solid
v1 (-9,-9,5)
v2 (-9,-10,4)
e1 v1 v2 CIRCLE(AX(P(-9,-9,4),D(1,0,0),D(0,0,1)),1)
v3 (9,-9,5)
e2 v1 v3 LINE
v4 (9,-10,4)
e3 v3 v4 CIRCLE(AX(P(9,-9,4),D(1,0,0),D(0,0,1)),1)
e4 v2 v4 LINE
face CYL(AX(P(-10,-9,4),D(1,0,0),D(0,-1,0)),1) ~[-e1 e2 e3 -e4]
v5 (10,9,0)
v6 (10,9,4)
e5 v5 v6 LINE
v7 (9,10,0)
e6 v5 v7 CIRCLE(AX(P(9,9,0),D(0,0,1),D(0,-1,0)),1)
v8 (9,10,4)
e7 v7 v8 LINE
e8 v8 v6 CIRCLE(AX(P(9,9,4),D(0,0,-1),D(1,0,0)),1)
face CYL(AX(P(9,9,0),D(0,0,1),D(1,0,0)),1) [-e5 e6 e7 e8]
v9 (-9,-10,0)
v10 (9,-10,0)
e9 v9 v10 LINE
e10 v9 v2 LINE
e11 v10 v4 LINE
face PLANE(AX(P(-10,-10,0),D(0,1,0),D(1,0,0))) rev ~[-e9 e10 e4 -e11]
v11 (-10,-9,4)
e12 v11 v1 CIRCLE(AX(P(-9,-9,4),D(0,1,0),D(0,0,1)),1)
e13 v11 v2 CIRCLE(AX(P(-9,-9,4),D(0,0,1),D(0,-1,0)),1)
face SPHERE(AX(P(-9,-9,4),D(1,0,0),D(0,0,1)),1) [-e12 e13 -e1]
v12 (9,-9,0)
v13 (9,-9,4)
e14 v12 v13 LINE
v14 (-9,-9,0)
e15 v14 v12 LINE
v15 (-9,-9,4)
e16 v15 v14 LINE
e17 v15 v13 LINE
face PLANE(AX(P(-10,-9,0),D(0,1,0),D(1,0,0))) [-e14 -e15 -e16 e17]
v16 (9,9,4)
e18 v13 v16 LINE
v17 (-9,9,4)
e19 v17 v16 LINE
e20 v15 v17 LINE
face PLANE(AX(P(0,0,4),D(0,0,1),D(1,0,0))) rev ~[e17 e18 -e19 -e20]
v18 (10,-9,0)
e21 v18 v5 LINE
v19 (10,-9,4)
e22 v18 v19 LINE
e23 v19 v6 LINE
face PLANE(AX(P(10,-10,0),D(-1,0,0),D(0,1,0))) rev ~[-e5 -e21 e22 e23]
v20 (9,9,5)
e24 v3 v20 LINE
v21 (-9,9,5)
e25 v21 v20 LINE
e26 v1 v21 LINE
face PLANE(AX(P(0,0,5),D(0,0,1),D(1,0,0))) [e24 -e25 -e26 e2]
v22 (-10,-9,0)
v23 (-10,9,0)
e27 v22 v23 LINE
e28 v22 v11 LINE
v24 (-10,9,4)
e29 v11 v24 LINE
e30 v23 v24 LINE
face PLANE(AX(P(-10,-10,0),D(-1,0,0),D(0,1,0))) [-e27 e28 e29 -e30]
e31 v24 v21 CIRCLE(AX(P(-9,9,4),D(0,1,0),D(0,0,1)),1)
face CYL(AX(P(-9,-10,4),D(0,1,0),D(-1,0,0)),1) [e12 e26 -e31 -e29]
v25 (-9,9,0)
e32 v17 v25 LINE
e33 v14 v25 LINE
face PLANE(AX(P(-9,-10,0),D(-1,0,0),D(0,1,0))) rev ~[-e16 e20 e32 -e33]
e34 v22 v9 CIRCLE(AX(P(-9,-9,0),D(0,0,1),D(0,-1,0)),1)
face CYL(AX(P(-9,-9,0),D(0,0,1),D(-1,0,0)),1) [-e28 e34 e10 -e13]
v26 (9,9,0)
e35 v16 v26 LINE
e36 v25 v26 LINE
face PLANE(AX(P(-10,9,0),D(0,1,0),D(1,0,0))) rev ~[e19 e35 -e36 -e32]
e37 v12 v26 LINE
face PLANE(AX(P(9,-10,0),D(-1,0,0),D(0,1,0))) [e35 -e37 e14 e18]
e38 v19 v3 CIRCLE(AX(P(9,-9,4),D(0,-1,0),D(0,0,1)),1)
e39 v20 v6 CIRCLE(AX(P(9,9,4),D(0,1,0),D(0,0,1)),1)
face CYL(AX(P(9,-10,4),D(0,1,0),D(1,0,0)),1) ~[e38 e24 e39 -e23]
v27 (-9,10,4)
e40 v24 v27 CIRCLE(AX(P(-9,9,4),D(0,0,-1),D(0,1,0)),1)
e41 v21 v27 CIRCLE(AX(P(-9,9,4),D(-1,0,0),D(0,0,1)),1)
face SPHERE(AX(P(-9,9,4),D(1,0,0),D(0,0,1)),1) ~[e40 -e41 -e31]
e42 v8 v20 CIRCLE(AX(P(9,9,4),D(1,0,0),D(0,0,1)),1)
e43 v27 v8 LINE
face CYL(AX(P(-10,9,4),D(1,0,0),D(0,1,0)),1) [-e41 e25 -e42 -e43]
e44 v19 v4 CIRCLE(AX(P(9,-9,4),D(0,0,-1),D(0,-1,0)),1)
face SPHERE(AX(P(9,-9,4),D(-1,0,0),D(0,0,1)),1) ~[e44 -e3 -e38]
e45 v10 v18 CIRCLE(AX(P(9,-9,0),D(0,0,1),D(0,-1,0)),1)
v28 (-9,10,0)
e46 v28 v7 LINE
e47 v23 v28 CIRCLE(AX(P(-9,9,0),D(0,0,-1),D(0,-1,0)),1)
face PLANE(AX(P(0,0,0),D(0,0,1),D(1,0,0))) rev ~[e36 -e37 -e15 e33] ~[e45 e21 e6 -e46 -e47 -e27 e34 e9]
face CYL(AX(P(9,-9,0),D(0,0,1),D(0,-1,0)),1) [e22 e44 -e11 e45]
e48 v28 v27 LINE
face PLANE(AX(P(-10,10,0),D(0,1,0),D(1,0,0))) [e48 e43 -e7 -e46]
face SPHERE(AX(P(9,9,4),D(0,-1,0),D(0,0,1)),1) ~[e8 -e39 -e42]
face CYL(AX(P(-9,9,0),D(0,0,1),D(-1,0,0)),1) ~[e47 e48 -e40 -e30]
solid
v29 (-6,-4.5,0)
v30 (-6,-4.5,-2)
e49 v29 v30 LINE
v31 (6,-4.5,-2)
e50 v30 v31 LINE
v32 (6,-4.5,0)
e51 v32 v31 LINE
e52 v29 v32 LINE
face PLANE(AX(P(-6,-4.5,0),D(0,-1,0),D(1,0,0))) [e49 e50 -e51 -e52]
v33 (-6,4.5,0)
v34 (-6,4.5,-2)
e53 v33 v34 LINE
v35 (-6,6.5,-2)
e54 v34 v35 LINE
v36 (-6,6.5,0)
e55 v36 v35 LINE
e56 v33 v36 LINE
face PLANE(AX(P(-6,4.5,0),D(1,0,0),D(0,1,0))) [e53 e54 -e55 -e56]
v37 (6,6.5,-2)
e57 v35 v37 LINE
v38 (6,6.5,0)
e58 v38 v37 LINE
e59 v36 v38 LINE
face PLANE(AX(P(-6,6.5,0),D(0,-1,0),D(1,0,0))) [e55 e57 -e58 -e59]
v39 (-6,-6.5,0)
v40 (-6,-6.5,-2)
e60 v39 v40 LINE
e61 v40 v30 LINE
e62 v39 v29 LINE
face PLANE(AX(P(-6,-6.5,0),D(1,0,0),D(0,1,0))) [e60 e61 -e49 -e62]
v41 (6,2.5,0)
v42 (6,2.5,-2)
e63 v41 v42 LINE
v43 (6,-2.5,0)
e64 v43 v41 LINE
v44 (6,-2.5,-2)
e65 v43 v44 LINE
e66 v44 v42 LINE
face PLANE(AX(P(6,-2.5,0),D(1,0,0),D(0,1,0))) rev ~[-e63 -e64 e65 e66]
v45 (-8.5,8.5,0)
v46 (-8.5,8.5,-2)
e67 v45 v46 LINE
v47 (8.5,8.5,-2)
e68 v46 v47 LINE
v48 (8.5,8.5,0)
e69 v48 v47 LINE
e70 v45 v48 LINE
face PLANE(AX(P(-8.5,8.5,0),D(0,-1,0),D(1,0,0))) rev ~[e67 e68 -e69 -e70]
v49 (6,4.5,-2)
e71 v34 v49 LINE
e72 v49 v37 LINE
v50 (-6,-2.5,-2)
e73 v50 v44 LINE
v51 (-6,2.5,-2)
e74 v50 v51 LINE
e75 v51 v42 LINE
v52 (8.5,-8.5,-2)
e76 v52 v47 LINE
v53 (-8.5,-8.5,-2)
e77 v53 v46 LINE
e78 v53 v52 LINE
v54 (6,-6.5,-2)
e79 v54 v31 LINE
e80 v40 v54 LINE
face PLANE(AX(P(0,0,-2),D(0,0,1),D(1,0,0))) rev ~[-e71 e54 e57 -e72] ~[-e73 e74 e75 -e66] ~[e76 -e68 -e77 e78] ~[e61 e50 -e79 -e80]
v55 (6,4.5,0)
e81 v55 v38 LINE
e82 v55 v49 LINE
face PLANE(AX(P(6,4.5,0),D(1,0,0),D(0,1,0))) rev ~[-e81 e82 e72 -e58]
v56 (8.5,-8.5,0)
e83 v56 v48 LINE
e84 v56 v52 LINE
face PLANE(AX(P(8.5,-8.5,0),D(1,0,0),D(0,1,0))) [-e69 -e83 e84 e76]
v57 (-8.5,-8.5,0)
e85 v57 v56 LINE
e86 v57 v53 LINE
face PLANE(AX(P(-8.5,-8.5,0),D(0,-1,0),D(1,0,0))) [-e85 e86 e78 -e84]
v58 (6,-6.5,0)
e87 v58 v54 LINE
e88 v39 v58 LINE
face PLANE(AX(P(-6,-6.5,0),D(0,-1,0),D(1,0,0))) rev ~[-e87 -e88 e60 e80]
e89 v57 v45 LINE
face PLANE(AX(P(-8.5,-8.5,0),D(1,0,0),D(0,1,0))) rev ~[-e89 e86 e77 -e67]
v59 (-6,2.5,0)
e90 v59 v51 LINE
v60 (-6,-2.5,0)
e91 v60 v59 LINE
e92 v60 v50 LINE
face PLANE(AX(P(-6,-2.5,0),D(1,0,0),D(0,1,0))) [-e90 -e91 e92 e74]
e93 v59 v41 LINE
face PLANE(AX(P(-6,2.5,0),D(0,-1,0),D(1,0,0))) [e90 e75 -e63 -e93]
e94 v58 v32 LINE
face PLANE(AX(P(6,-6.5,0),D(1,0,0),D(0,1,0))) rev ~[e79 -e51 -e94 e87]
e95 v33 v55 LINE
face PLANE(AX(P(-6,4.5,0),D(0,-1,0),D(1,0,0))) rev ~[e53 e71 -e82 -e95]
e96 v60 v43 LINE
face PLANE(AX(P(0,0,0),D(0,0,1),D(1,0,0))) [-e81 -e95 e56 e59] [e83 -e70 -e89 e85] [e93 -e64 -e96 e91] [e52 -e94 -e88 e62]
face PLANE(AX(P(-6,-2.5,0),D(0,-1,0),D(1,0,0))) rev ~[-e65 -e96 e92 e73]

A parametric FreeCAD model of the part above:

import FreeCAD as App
import Part
import Sketcher

V = App.Vector


def edges_at(feature, points):
    """Names of the edges that pass closest to the given points."""
    edges = feature.Shape.Edges
    near = lambda p: min(range(len(edges)), key=lambda i: edges[i].distToShape(Part.Vertex(*p))[0])
    return sorted({f"Edge{near(p) + 1}" for p in points})


def faces_at(feature, points):
    """Names of the faces that lie closest to the given points."""
    faces = feature.Shape.Faces
    near = lambda p: min(range(len(faces)), key=lambda i: faces[i].distToShape(Part.Vertex(*p))[0])
    return sorted({f"Face{near(p) + 1}" for p in points})


def add_polygon(sketch, points):
    """Adds a closed chain of lines whose ends are joined by coincident constraints."""
    first, n = sketch.GeometryCount, len(points)
    for a, b in zip(points, points[1:] + points[:1]):
        sketch.addGeometry(Part.LineSegment(App.Vector(*a, 0), App.Vector(*b, 0)), False)
    for i in range(n):
        sketch.addConstraint(Sketcher.Constraint("Coincident", first + i, 2, first + (i + 1) % n, 1))

doc = App.newDocument("Part")
body = doc.addObject("PartDesign::Body", "Body")

# Sketch on XY plane
sketch1 = doc.addObject("Sketcher::SketchObject", "Sketch")
body.addObject(sketch1)
sketch1.AttachmentSupport = (doc.XY_Plane, [""])
sketch1.MapMode = "FlatFace"
add_polygon(sketch1, [(-10, 10), (-10, -10), (10, -10), (10, 10)])  # lines 0-3
sketch1.addConstraint([
    Sketcher.Constraint("Vertical", 0),
    Sketcher.Constraint("Horizontal", 1),
    Sketcher.Constraint("Vertical", 2),
    Sketcher.Constraint("Horizontal", 3),
    Sketcher.Constraint("Symmetric", 0, 2, 2, 2, -1, 1),
    Sketcher.Constraint("Equal", 3, 0),
    Sketcher.Constraint("DistanceX", 1, 1, 1, 2, 20.0),
])
pad1 = doc.addObject("PartDesign::Pad", "Pad")
body.addObject(pad1)
pad1.Profile = sketch1
pad1.Length = 5
doc.recompute()

thickness = doc.addObject("PartDesign::Thickness", "Thickness")
body.addObject(thickness)
thickness.Base = (pad1, faces_at(pad1, [(0, 0, 0)]))
thickness.Value = 1
thickness.Reversed = True
thickness.Join = "Arc"
doc.recompute()

fillet = doc.addObject("PartDesign::Fillet", "Fillet")
body.addObject(fillet)
fillet.Base = (thickness, edges_at(thickness, [
    (0, -10, 5),
    (10, 0, 5),
    (0, 10, 5),
    (-10, 0, 5),
    (-10, -10, 2.5),
    (10, -10, 2.5),
    (10, 10, 2.5),
    (-10, 10, 2.5),
]))
fillet.Radius = 1
body2 = doc.addObject("PartDesign::Body", "Body001")

# Sketch on XY plane
sketch2 = doc.addObject("Sketcher::SketchObject", "Sketch001")
body2.addObject(sketch2)
sketch2.AttachmentSupport = (doc.getObject("XY_Plane001"), [""])
sketch2.MapMode = "FlatFace"
add_polygon(sketch2, [(-8.5, 8.5), (-8.5, -8.5), (8.5, -8.5), (8.5, 8.5)])  # lines 0-3
add_polygon(sketch2, [(6, -6.5), (-6, -6.5), (-6, -4.5), (6, -4.5)])  # lines 4-7
add_polygon(sketch2, [(6, -2.5), (-6, -2.5), (-6, 2.5), (6, 2.5)])  # lines 8-11
add_polygon(sketch2, [(6, 4.5), (-6, 4.5), (-6, 6.5), (6, 6.5)])  # lines 12-15
sketch2.addConstraint([
    Sketcher.Constraint("Vertical", 0),
    Sketcher.Constraint("Horizontal", 1),
    Sketcher.Constraint("Vertical", 2),
    Sketcher.Constraint("Horizontal", 3),
    Sketcher.Constraint("Horizontal", 4),
    Sketcher.Constraint("Vertical", 5),
    Sketcher.Constraint("Horizontal", 6),
    Sketcher.Constraint("Vertical", 7),
    Sketcher.Constraint("Horizontal", 8),
    Sketcher.Constraint("Vertical", 9),
    Sketcher.Constraint("Horizontal", 10),
    Sketcher.Constraint("Vertical", 11),
    Sketcher.Constraint("Horizontal", 12),
    Sketcher.Constraint("Vertical", 13),
    Sketcher.Constraint("Horizontal", 14),
    Sketcher.Constraint("Vertical", 15),
    Sketcher.Constraint("Symmetric", 0, 2, 2, 2, -1, 1),
    Sketcher.Constraint("Symmetric", 8, 2, 10, 2, -1, 1),
    Sketcher.Constraint("Symmetric", 6, 2, 12, 2, -1, 1),
    Sketcher.Constraint("Symmetric", 4, 2, 14, 2, -1, 1),
    Sketcher.Constraint("Vertical", 5, 2, 8, 2),
    Sketcher.Constraint("Vertical", 7, 2, 10, 2),
    Sketcher.Constraint("Equal", 3, 0),
    Sketcher.Constraint("DistanceX", 1, 1, 1, 2, 17.0),
    Sketcher.Constraint("DistanceX", 4, 2, 4, 1, 12.0),
    Sketcher.Constraint("DistanceY", 5, 1, 5, 2, 2.0),
    Sketcher.Constraint("DistanceY", 9, 1, 9, 2, 5.0),
    Sketcher.Constraint("DistanceY", 0, 2, 4, 2, 2.0),
])
pad2 = doc.addObject("PartDesign::Pad", "Pad001")
body2.addObject(pad2)
pad2.Profile = sketch2
pad2.Length = 2
pad2.Reversed = True

doc.recompute()
